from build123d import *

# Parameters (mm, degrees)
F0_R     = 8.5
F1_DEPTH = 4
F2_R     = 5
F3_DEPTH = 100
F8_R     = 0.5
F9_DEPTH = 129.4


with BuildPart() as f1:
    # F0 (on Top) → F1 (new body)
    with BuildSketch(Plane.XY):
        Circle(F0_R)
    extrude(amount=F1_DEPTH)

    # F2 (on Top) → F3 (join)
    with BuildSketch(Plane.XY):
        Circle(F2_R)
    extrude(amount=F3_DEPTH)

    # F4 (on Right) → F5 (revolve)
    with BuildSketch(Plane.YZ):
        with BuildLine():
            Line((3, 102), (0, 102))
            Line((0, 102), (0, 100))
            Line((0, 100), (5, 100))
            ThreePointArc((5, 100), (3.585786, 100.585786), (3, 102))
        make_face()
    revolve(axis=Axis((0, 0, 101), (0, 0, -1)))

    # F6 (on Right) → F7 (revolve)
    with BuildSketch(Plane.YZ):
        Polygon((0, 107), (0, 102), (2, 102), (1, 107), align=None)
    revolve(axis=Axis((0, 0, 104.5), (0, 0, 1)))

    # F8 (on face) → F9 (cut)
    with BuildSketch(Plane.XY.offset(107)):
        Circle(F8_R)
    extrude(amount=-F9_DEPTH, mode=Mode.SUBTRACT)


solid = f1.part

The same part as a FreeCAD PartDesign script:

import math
import FreeCAD as App
import Part
import Sketcher
Q = App.Units.Quantity

doc = App.newDocument("Part")
params = doc.addObject("Spreadsheet::Sheet", "Params")
for row, (alias, value) in enumerate([
    ("sketch1_diameter", "17 mm"),
    ("pad1_length", "4 mm"),
    ("sketch2_diameter", "10 mm"),
    ("pad2_length", "100 mm"),
    ("sketch3_radius", "1.999999 mm"),
    ("sketch3_width", "3 mm"),
    ("revolution_angle", "360 deg"),
    ("sketch4_width", "2 mm"),
    ("sketch4_width2", "1 mm"),
    ("sketch4_height", "5 mm"),
    ("revolution2_angle", "360 deg"),
    ("sketch5_diameter", "1 mm"),
    ("pocket1_length", "129.4 mm"),
], start=1):
    params.set(f"A{row}", alias)
    params.set(f"B{row}", "=" + value)
    params.setAlias(f"B{row}", alias)

body = doc.addObject("PartDesign::Body", "Body")

sketch1 = body.newObject("Sketcher::SketchObject", "Sketch")
sketch1.AttachmentSupport = (doc.getObject("XY_Plane"), [""])
sketch1.MapMode = "FlatFace"
sketch1.addGeometry(Part.Circle(App.Vector(0, 0, 0), App.Vector(0, 0, 1), 8), False)
sketch1.addConstraint([
    Sketcher.Constraint("Coincident", 0, 3, -1, 1),
    Sketcher.Constraint("Diameter", 0, Q("17 mm")),
])
sketch1.setExpression("Constraints[1]", "Params.sketch1_diameter")
pad1 = body.newObject("PartDesign::Pad", "Pad")
pad1.Profile = sketch1
pad1.setExpression("Length", "Params.pad1_length")

sketch2 = body.newObject("Sketcher::SketchObject", "Sketch001")
sketch2.AttachmentSupport = (doc.getObject("XY_Plane"), [""])
sketch2.MapMode = "FlatFace"
sketch2.addGeometry(Part.Circle(App.Vector(0, 0, 0), App.Vector(0, 0, 1), 5), False)
sketch2.addConstraint([
    Sketcher.Constraint("Coincident", 0, 3, -1, 1),
    Sketcher.Constraint("Diameter", 0, Q("10 mm")),
])
sketch2.setExpression("Constraints[1]", "Params.sketch2_diameter")
pad2 = body.newObject("PartDesign::Pad", "Pad001")
pad2.Profile = sketch2
pad2.setExpression("Length", "Params.pad2_length")

sketch3 = body.newObject("Sketcher::SketchObject", "Sketch002")
sketch3.AttachmentSupport = (doc.getObject("YZ_Plane"), [""])
sketch3.MapMode = "FlatFace"
sketch3.addGeometry([
    Part.LineSegment(App.Vector(3, 102, 0), App.Vector(0, 102, 0)),
    Part.LineSegment(App.Vector(0, 102, 0), App.Vector(0, 100, 0)),
    Part.LineSegment(App.Vector(0, 100, 0), App.Vector(5, 100, 0)),
    Part.ArcOfCircle(Part.Circle(App.Vector(5, 102, 0), App.Vector(0, 0, 1), 2), math.radians(180), math.radians(270)),
], False)
sketch3.addConstraint([
    Sketcher.Constraint("Coincident", 0, 2, 1, 1),
    Sketcher.Constraint("Coincident", 1, 2, 2, 1),
    Sketcher.Constraint("Tangent", 2, 2, 3, 2),
    Sketcher.Constraint("Coincident", 3, 1, 0, 1),
    Sketcher.Constraint("Horizontal", 0),
    Sketcher.Constraint("Vertical", 1),
    Sketcher.Constraint("Horizontal", 2),
    Sketcher.Constraint("PointOnObject", 0, 2, -2),
    Sketcher.Constraint("Horizontal", 3, 3, 0, 2),
    Sketcher.Constraint("Radius", 3, Q("1.999999 mm")),
    Sketcher.Constraint("DistanceX", 0, 2, 0, 1, Q("3 mm")),
    Sketcher.Constraint("DistanceY", -1, 1, 3, 3, Q("101.999999 mm")),
])
sketch3.setExpression("Constraints[9]", "Params.sketch3_radius")
sketch3.setExpression("Constraints[10]", "Params.sketch3_width")
revolution = body.newObject("PartDesign::Revolution", "Revolution")
revolution.Profile = sketch3
revolution.ReferenceAxis = (sketch3, ["V_Axis"])
revolution.setExpression("Angle", "Params.revolution_angle")

sketch4 = body.newObject("Sketcher::SketchObject", "Sketch003")
sketch4.AttachmentSupport = (doc.getObject("YZ_Plane"), [""])
sketch4.MapMode = "FlatFace"
sketch4.addGeometry([
    Part.LineSegment(App.Vector(0, 107, 0), App.Vector(0, 102, 0)),
    Part.LineSegment(App.Vector(0, 102, 0), App.Vector(2, 102, 0)),
    Part.LineSegment(App.Vector(2, 102, 0), App.Vector(1, 107, 0)),
    Part.LineSegment(App.Vector(1, 107, 0), App.Vector(0, 107, 0)),
], False)
sketch4.addConstraint([
    Sketcher.Constraint("Coincident", 0, 2, 1, 1),
    Sketcher.Constraint("Coincident", 1, 2, 2, 1),
    Sketcher.Constraint("Coincident", 2, 2, 3, 1),
    Sketcher.Constraint("Coincident", 3, 2, 0, 1),
    Sketcher.Constraint("Vertical", 0),
    Sketcher.Constraint("Horizontal", 1),
    Sketcher.Constraint("Horizontal", 3),
    Sketcher.Constraint("PointOnObject", 0, 2, -2),
    Sketcher.Constraint("DistanceX", 1, 1, 1, 2, Q("2 mm")),
    Sketcher.Constraint("DistanceX", 3, 2, 3, 1, Q("1 mm")),
    Sketcher.Constraint("DistanceY", 0, 2, 0, 1, Q("5 mm")),
    Sketcher.Constraint("DistanceY", -1, 1, 0, 2, Q("102 mm")),
])
sketch4.setExpression("Constraints[8]", "Params.sketch4_width")
sketch4.setExpression("Constraints[9]", "Params.sketch4_width2")
sketch4.setExpression("Constraints[10]", "Params.sketch4_height")
revolution2 = body.newObject("PartDesign::Revolution", "Revolution001")
revolution2.Profile = sketch4
revolution2.ReferenceAxis = (sketch4, ["V_Axis"])
revolution2.setExpression("Angle", "Params.revolution2_angle")

sketch5 = body.newObject("Sketcher::SketchObject", "Sketch004")
sketch5.AttachmentSupport = (doc.getObject("XY_Plane"), [""])
sketch5.MapMode = "FlatFace"
sketch5.AttachmentOffset = App.Placement(App.Vector(0, 0, 107), App.Rotation())
sketch5.addGeometry(Part.Circle(App.Vector(0, 0, 0), App.Vector(0, 0, 1), 0.5), False)
sketch5.addConstraint([
    Sketcher.Constraint("Coincident", 0, 3, -1, 1),
    Sketcher.Constraint("Diameter", 0, Q("1 mm")),
])
sketch5.setExpression("Constraints[1]", "Params.sketch5_diameter")
pocket1 = body.newObject("PartDesign::Pocket", "Pocket")
pocket1.Profile = sketch5
pocket1.setExpression("Length", "Params.pocket1_length")

doc.recompute()
